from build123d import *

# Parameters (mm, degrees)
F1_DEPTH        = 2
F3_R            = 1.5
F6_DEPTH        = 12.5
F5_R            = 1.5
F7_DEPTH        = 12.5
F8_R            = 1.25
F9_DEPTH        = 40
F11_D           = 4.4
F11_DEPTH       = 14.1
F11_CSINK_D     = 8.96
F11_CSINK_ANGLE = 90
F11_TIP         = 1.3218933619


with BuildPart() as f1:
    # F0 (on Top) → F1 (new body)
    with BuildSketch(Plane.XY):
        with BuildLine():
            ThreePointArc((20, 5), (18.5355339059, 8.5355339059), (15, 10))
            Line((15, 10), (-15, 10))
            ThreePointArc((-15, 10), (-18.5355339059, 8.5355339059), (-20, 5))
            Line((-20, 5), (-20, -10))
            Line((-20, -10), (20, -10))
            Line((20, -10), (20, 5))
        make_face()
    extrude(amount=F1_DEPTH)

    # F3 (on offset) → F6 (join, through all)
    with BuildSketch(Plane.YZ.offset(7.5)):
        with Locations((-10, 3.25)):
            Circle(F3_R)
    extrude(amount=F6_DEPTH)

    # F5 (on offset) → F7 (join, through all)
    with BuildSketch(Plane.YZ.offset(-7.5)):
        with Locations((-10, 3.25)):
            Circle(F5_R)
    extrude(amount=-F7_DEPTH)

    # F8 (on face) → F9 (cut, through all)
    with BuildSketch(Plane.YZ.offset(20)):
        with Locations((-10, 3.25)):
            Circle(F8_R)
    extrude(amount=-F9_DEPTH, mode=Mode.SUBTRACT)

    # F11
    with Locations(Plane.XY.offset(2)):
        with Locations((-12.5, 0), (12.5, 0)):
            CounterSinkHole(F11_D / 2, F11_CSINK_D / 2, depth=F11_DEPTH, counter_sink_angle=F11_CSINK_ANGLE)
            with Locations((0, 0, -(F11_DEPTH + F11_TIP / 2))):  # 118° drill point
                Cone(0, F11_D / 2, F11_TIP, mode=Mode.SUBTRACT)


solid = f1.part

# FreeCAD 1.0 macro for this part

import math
import FreeCAD as App
import Part
import Sketcher

V = App.Vector
Q = App.Units.Quantity

doc = App.newDocument("Part")
body = doc.addObject("PartDesign::Body", "Body")

sketch1 = doc.addObject("Sketcher::SketchObject", "Sketch")
body.addObject(sketch1)
sketch1.AttachmentSupport = (doc.XY_Plane, [""])
sketch1.MapMode = "FlatFace"
sketch1.addGeometry([
    Part.ArcOfCircle(Part.Circle(V(15, 5, 0), V(0, 0, 1), 5), math.radians(0), math.radians(90)),
    Part.LineSegment(V(15, 10, 0), V(-15, 10, 0)),
    Part.ArcOfCircle(Part.Circle(V(-15, 5, 0), V(0, 0, 1), 5), math.radians(90), math.radians(180)),
    Part.LineSegment(V(-20, 5, 0), V(-20, -10, 0)),
    Part.LineSegment(V(-20, -10, 0), V(20, -10, 0)),
    Part.LineSegment(V(20, -10, 0), V(20, 5, 0)),
], False)
sketch1.addConstraint([
    Sketcher.Constraint("Tangent", 0, 2, 1, 1),
    Sketcher.Constraint("Tangent", 1, 2, 2, 1),
    Sketcher.Constraint("Tangent", 2, 2, 3, 1),
    Sketcher.Constraint("Coincident", 3, 2, 4, 1),
    Sketcher.Constraint("Coincident", 4, 2, 5, 1),
    Sketcher.Constraint("Tangent", 5, 2, 0, 1),
    Sketcher.Constraint("Horizontal", 1),
    Sketcher.Constraint("Vertical", 3),
    Sketcher.Constraint("Horizontal", 4),
    Sketcher.Constraint("Vertical", 5),
    Sketcher.Constraint("Equal", 0, 2),
    Sketcher.Constraint("Radius", 0, Q("5 mm")),
    Sketcher.Constraint("DistanceX", 1, 2, 1, 1, Q("30 mm")),
    Sketcher.Constraint("DistanceY", 3, 2, 3, 1, Q("15 mm")),
    Sketcher.Constraint("DistanceX", -1, 1, 0, 3, Q("15 mm")),
    Sketcher.Constraint("DistanceY", -1, 1, 0, 3, Q("5 mm")),
])
pad1 = doc.addObject("PartDesign::Pad", "Pad")
body.addObject(pad1)
pad1.Profile = sketch1
pad1.Length = 2

sketch2 = doc.addObject("Sketcher::SketchObject", "Sketch001")
body.addObject(sketch2)
sketch2.AttachmentSupport = (doc.YZ_Plane, [""])
sketch2.MapMode = "FlatFace"
sketch2.AttachmentOffset = App.Placement(V(0, 0, 7.5), App.Rotation())
sketch2.addGeometry(Part.Circle(V(-10, 3.2, 0), V(0, 0, 1), 1.5), False)
sketch2.addConstraint([
    Sketcher.Constraint("Diameter", 0, Q("3 mm")),
    Sketcher.Constraint("DistanceX", 0, 3, -1, 1, Q("10 mm")),
    Sketcher.Constraint("DistanceY", -1, 1, 0, 3, Q("3.25 mm")),
])
pad2 = doc.addObject("PartDesign::Pad", "Pad001")
body.addObject(pad2)
pad2.Profile = sketch2
pad2.Length = 12.5

sketch3 = doc.addObject("Sketcher::SketchObject", "Sketch002")
body.addObject(sketch3)
sketch3.AttachmentSupport = (doc.YZ_Plane, [""])
sketch3.MapMode = "FlatFace"
sketch3.AttachmentOffset = App.Placement(V(0, 0, -7.5), App.Rotation())
sketch3.addGeometry(Part.Circle(V(-10, 3.2, 0), V(0, 0, 1), 1.5), False)
sketch3.addConstraint([
    Sketcher.Constraint("Diameter", 0, Q("3 mm")),
    Sketcher.Constraint("DistanceX", 0, 3, -1, 1, Q("10 mm")),
    Sketcher.Constraint("DistanceY", -1, 1, 0, 3, Q("3.25 mm")),
])
pad3 = doc.addObject("PartDesign::Pad", "Pad002")
body.addObject(pad3)
pad3.Profile = sketch3
pad3.Length = 12.5
pad3.Reversed = True

sketch4 = doc.addObject("Sketcher::SketchObject", "Sketch003")
body.addObject(sketch4)
sketch4.AttachmentSupport = (doc.YZ_Plane, [""])
sketch4.MapMode = "FlatFace"
sketch4.AttachmentOffset = App.Placement(V(0, 0, 20), App.Rotation())
sketch4.addGeometry(Part.Circle(V(-10, 3.2, 0), V(0, 0, 1), 1.2), False)
sketch4.addConstraint([
    Sketcher.Constraint("Diameter", 0, Q("2.5 mm")),
    Sketcher.Constraint("DistanceX", 0, 3, -1, 1, Q("10 mm")),
    Sketcher.Constraint("DistanceY", -1, 1, 0, 3, Q("3.25 mm")),
])
pocket1 = doc.addObject("PartDesign::Pocket", "Pocket")
body.addObject(pocket1)
pocket1.Profile = sketch4
pocket1.Type = "ThroughAll"

sketch5 = doc.addObject("Sketcher::SketchObject", "Sketch004")
body.addObject(sketch5)
sketch5.AttachmentSupport = (doc.XY_Plane, [""])
sketch5.MapMode = "FlatFace"
sketch5.AttachmentOffset = App.Placement(V(0, 0, 2), App.Rotation())
sketch5.addGeometry([
    Part.Circle(V(-12.5, 0, 0), V(0, 0, 1), 2.2),
    Part.Circle(V(12.5, 0, 0), V(0, 0, 1), 2.2),
], False)
sketch5.addConstraint([
    Sketcher.Constraint("Equal", 0, 1),
    Sketcher.Constraint("Symmetric", 0, 3, 1, 3, -1, 1),
    Sketcher.Constraint("PointOnObject", 0, 3, -1),
    Sketcher.Constraint("Diameter", 0, Q("4.4 mm")),
    Sketcher.Constraint("DistanceX", 0, 3, 1, 3, Q("25 mm")),
])
doc.recompute()
hole = doc.addObject("PartDesign::Hole", "Hole")
body.addObject(hole)
hole.Profile = sketch5
hole.ThreadType = "None"
hole.Diameter = 4.4
hole.DepthType = "Dimension"
hole.Depth = 14.1
hole.DrillPoint = "Angled"
hole.DrillPointAngle = 118
hole.HoleCutType = "Countersink"
hole.HoleCutDiameter = 8.96
hole.HoleCutCountersinkAngle = 90

doc.recompute()
